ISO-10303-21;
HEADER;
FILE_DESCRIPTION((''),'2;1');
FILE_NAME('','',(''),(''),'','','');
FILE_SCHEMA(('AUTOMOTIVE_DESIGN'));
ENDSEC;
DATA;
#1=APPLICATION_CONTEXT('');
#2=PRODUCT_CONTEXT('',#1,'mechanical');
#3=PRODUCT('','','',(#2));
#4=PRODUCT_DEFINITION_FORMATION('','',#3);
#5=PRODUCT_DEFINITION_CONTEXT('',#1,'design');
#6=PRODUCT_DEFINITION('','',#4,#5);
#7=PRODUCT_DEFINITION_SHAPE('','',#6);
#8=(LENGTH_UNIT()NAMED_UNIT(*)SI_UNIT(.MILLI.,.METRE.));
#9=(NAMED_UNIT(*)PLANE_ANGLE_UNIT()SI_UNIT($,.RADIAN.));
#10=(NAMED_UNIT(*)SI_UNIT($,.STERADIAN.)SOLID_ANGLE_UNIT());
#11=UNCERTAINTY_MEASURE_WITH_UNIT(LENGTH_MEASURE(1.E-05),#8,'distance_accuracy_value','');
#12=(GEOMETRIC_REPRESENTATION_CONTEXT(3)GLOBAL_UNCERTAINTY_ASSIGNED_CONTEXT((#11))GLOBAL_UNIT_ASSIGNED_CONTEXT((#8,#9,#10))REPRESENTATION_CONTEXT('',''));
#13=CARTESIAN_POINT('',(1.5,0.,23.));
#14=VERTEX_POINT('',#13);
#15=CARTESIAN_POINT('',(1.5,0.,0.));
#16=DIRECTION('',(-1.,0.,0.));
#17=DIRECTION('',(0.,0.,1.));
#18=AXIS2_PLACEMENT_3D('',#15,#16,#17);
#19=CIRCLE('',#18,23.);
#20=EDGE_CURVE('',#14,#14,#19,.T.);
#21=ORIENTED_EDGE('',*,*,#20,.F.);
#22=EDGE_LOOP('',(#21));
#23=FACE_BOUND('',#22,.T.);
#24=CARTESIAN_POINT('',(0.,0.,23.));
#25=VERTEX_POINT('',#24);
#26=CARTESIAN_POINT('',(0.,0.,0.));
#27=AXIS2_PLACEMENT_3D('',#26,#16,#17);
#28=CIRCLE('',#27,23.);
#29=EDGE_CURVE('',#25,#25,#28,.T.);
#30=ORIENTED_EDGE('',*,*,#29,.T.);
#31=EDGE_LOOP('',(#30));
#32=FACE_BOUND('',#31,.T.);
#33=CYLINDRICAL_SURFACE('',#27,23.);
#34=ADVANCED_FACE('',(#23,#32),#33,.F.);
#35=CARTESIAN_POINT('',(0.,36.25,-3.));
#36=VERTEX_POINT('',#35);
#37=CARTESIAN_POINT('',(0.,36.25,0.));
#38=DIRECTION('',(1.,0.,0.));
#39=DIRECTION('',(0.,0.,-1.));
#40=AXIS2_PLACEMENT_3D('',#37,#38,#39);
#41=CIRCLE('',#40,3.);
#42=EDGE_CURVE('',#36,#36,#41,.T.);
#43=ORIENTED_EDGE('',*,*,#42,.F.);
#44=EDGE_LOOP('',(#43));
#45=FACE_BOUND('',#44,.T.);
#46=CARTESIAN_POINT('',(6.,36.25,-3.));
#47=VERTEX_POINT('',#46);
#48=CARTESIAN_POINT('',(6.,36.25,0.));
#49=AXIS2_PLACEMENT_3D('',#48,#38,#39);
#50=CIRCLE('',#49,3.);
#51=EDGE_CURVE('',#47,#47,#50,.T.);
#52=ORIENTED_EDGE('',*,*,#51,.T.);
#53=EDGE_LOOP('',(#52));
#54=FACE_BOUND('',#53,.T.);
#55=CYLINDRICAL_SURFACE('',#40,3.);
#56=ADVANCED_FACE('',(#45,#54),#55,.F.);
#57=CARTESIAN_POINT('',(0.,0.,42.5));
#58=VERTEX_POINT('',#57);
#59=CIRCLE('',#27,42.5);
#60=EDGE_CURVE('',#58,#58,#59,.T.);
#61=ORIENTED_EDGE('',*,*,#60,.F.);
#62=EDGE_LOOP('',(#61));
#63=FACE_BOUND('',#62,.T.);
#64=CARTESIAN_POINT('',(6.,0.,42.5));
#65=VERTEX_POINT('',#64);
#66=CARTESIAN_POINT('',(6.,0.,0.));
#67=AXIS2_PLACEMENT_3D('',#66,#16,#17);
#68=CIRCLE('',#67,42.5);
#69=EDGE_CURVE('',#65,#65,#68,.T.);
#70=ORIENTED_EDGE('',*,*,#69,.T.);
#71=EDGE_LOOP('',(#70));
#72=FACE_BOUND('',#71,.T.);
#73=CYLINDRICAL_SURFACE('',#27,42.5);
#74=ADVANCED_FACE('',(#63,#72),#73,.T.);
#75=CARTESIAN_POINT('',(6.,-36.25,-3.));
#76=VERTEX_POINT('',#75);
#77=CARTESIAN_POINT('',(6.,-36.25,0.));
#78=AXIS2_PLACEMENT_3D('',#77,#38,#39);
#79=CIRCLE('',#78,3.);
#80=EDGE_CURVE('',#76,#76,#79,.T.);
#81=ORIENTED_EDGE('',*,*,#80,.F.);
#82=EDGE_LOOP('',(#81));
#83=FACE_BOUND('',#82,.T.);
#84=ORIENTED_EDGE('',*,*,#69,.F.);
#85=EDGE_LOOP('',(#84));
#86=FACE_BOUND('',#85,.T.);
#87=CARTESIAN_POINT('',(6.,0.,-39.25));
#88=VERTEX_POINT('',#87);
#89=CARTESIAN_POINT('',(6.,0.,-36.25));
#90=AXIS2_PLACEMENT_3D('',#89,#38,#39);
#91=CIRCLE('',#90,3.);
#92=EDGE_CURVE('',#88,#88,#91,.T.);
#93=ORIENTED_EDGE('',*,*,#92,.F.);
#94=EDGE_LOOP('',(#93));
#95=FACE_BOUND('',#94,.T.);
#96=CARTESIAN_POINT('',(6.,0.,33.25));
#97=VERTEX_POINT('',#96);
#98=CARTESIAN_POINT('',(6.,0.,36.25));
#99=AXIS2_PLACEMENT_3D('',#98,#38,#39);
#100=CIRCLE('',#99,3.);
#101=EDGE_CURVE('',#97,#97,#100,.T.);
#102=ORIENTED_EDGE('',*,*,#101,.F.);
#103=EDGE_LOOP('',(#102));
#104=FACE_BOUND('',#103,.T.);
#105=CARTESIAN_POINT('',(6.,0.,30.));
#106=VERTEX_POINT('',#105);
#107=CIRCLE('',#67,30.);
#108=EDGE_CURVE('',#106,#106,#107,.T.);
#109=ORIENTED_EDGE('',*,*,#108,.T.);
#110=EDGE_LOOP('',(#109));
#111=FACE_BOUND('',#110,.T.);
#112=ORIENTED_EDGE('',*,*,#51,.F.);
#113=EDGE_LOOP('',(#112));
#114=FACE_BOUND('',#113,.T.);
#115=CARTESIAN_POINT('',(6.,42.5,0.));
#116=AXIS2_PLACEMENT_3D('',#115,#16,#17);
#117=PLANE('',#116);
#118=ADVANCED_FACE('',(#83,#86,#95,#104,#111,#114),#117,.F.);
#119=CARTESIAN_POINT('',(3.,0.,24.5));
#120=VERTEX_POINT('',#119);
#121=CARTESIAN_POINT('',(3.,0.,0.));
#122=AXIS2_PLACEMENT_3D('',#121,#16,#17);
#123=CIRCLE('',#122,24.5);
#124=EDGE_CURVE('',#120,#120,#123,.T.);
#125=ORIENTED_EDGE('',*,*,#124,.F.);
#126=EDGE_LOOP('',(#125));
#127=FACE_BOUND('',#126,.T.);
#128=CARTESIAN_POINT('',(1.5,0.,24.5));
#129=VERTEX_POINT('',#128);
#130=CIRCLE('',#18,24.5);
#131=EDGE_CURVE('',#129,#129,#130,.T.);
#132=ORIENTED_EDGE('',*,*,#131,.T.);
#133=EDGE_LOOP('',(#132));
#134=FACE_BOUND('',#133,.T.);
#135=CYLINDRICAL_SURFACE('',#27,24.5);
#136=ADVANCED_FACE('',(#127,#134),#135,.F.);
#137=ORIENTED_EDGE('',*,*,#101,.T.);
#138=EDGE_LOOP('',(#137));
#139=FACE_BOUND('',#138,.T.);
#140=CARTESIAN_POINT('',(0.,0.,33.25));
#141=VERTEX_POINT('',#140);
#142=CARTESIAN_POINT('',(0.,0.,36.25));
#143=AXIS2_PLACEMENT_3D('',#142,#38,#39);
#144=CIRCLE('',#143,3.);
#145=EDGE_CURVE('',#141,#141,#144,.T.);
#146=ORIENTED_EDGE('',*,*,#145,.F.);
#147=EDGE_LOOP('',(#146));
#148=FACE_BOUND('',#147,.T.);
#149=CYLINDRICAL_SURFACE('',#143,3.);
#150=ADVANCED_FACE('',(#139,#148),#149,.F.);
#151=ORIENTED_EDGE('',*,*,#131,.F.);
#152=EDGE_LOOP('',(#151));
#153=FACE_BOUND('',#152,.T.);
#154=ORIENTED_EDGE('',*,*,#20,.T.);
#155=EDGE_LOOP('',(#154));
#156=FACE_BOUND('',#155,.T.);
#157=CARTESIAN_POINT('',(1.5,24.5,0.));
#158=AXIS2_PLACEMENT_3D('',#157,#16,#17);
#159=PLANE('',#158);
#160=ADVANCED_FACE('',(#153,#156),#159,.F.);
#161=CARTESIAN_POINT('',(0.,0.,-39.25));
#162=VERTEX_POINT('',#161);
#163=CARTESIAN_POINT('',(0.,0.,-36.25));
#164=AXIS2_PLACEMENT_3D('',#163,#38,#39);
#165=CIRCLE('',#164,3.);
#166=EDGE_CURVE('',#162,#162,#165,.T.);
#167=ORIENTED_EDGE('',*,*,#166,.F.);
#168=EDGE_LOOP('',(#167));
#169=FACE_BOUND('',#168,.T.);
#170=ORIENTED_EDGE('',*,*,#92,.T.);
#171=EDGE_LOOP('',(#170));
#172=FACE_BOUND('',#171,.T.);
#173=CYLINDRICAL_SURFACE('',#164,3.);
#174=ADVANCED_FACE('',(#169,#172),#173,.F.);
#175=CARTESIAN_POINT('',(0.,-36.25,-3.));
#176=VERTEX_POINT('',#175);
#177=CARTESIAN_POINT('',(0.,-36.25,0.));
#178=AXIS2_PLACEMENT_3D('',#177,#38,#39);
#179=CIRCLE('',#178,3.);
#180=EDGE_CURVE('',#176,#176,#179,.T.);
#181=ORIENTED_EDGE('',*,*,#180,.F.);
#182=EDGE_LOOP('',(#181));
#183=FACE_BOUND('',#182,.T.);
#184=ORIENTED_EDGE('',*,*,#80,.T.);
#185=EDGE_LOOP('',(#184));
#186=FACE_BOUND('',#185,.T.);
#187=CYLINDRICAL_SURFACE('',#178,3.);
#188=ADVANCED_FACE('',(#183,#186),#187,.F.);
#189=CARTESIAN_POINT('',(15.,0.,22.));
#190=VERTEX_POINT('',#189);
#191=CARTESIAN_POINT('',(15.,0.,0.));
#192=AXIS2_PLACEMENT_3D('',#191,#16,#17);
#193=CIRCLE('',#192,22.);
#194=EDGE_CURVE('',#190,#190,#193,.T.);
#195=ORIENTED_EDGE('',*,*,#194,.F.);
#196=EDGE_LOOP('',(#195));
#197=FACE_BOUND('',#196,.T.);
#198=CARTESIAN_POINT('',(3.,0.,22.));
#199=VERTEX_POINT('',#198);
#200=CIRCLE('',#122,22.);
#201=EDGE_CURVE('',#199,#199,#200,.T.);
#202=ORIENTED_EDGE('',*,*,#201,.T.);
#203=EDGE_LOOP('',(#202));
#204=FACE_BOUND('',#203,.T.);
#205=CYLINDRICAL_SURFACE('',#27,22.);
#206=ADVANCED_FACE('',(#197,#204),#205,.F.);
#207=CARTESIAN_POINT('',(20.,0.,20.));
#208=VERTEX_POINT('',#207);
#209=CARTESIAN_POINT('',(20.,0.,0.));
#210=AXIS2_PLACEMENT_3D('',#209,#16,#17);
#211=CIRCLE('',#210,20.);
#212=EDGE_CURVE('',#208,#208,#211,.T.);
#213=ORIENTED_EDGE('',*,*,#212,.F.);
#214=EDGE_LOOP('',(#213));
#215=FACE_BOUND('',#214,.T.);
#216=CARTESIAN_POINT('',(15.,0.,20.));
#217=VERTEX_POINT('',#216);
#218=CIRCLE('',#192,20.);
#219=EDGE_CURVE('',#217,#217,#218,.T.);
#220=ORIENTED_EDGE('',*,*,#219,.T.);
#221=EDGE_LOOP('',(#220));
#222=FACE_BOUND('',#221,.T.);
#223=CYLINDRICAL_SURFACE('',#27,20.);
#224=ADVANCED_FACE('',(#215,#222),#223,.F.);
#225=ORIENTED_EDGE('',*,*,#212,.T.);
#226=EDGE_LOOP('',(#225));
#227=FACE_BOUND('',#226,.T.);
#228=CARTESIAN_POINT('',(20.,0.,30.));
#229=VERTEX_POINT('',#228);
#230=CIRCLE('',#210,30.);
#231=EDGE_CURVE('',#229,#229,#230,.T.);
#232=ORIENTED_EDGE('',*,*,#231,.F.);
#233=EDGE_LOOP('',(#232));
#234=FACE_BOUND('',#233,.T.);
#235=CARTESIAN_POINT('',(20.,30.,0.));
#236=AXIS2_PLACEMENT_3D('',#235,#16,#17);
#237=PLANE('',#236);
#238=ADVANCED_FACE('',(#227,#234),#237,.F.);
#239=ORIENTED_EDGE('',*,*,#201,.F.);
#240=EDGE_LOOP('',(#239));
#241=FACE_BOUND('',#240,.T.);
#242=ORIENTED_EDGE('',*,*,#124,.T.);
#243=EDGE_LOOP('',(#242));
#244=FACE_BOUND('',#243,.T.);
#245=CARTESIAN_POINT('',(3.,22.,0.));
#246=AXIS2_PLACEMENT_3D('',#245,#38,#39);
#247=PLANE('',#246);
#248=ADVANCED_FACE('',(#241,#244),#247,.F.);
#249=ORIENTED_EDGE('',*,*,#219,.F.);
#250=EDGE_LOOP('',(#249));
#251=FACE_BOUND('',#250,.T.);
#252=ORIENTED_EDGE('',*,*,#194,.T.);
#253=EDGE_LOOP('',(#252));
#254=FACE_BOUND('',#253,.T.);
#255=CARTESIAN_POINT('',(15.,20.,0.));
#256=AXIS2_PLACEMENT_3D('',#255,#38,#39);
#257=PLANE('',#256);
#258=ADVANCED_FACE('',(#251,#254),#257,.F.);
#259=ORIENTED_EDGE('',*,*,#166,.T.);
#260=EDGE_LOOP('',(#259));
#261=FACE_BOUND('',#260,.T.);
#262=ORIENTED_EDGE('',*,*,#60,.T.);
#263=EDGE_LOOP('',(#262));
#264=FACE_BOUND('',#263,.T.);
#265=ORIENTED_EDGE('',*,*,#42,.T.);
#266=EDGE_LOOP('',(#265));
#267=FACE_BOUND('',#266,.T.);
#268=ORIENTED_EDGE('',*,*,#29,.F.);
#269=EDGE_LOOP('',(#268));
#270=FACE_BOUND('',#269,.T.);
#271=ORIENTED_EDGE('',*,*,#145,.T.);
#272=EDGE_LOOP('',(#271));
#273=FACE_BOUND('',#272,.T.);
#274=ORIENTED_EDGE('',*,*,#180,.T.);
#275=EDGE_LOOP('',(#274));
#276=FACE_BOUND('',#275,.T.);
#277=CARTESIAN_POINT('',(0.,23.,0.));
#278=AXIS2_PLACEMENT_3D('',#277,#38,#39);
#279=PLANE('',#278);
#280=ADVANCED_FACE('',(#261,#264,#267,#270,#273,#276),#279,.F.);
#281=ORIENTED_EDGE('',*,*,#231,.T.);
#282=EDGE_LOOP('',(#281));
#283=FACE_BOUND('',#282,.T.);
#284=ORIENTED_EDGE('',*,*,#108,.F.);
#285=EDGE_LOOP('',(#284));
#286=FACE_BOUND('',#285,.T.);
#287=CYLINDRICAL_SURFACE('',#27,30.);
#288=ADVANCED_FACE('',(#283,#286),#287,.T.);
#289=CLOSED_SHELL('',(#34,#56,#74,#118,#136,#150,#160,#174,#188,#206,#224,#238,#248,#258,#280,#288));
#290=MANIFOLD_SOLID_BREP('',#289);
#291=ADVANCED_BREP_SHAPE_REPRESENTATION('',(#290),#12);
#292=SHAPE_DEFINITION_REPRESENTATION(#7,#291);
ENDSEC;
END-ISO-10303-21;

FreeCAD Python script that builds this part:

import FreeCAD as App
import Part
import Sketcher

V = App.Vector


def add_polygon(sketch, points):
    """Adds a closed chain of lines whose ends are joined by coincident constraints."""
    first, n = sketch.GeometryCount, len(points)
    for a, b in zip(points, points[1:] + points[:1]):
        sketch.addGeometry(Part.LineSegment(App.Vector(*a, 0), App.Vector(*b, 0)), False)
    for i in range(n):
        sketch.addConstraint(Sketcher.Constraint("Coincident", first + i, 2, first + (i + 1) % n, 1))

doc = App.newDocument("Part")
body = doc.addObject("PartDesign::Body", "Body")

# Sketch on XY plane
sketch1 = doc.addObject("Sketcher::SketchObject", "Sketch")
body.addObject(sketch1)
sketch1.AttachmentSupport = (doc.XY_Plane, [""])
sketch1.MapMode = "FlatFace"
add_polygon(sketch1, [(0, 42.5), (0, 23), (1.5, 23), (1.5, 24.5), (3, 24.5), (3, 22), (15, 22), (15, 20), (20, 20), (20, 30), (6, 30), (6, 42.5)])  # lines 0-11
sketch1.addConstraint(Sketcher.Constraint("Vertical", 0))
sketch1.addConstraint(Sketcher.Constraint("Horizontal", 1))
sketch1.addConstraint(Sketcher.Constraint("Vertical", 2))
sketch1.addConstraint(Sketcher.Constraint("Horizontal", 3))
sketch1.addConstraint(Sketcher.Constraint("Vertical", 4))
sketch1.addConstraint(Sketcher.Constraint("Horizontal", 5))
sketch1.addConstraint(Sketcher.Constraint("Vertical", 6))
sketch1.addConstraint(Sketcher.Constraint("Horizontal", 7))
sketch1.addConstraint(Sketcher.Constraint("Vertical", 8))
sketch1.addConstraint(Sketcher.Constraint("Horizontal", 9))
sketch1.addConstraint(Sketcher.Constraint("Vertical", 10))
sketch1.addConstraint(Sketcher.Constraint("Horizontal", 11))
sketch1.addConstraint(Sketcher.Constraint("PointOnObject", 0, 2, -2))
sketch1.addConstraint(Sketcher.Constraint("Equal", 1, 3))
sketch1.addConstraint(Sketcher.Constraint("Equal", 3, 2))
sketch1.addConstraint(Sketcher.Constraint("DistanceX", 5, 1, 5, 2, 12.0))
sketch1.addConstraint(Sketcher.Constraint("DistanceX", 7, 1, 7, 2, 5.0))
sketch1.addConstraint(Sketcher.Constraint("DistanceX", 9, 2, 9, 1, 14.0))
sketch1.addConstraint(Sketcher.Constraint("DistanceX", 11, 2, 11, 1, 6.0))
sketch1.addConstraint(Sketcher.Constraint("DistanceY", 6, 2, 6, 1, 2.0))
sketch1.addConstraint(Sketcher.Constraint("DistanceY", 8, 1, 8, 2, 10.0))
sketch1.addConstraint(Sketcher.Constraint("DistanceY", 0, 2, 0, 1, 19.5))
sketch1.addConstraint(Sketcher.Constraint("DistanceY", 4, 2, 4, 1, 2.5))
sketch1.addConstraint(Sketcher.Constraint("DistanceY", -1, 1, 0, 2, 23.0))
revolution = doc.addObject("PartDesign::Revolution", "Revolution")
body.addObject(revolution)
revolution.Profile = sketch1
revolution.ReferenceAxis = (sketch1, ["H_Axis"])
revolution.Angle = 360

# Sketch on YZ plane
sketch2 = doc.addObject("Sketcher::SketchObject", "Sketch001")
body.addObject(sketch2)
sketch2.AttachmentSupport = (doc.YZ_Plane, [""])
sketch2.MapMode = "FlatFace"
sketch2.AttachmentOffset = App.Placement(V(0, 0, 6), App.Rotation())
sketch2.addGeometry(Part.Circle(V(36.25, 0, 0), V(0, 0, 1), 3), False)
sketch2.addGeometry(Part.Circle(V(0, -36.25, 0), V(0, 0, 1), 3), False)
sketch2.addGeometry(Part.Circle(V(-36.25, 0, 0), V(0, 0, 1), 3), False)
sketch2.addGeometry(Part.Circle(V(0, 36.25, 0), V(0, 0, 1), 3), False)
sketch2.addConstraint(Sketcher.Constraint("Equal", 0, 1))
sketch2.addConstraint(Sketcher.Constraint("Equal", 1, 2))
sketch2.addConstraint(Sketcher.Constraint("Equal", 2, 3))
sketch2.addConstraint(Sketcher.Constraint("Symmetric", 0, 3, 2, 3, -1, 1))
sketch2.addConstraint(Sketcher.Constraint("Symmetric", 1, 3, 3, 3, -1, 1))
sketch2.addConstraint(Sketcher.Constraint("PointOnObject", 0, 3, -1))
sketch2.addConstraint(Sketcher.Constraint("PointOnObject", 1, 3, -2))
sketch2.addConstraint(Sketcher.Constraint("Diameter", 0, 6.0))
sketch2.addConstraint(Sketcher.Constraint("DistanceX", 2, 3, 0, 3, 72.5))
sketch2.addConstraint(Sketcher.Constraint("DistanceY", 1, 3, 3, 3, 72.5))
pocket1 = doc.addObject("PartDesign::Pocket", "Pocket")
body.addObject(pocket1)
pocket1.Profile = sketch2
pocket1.Type = "ThroughAll"

doc.recompute()
